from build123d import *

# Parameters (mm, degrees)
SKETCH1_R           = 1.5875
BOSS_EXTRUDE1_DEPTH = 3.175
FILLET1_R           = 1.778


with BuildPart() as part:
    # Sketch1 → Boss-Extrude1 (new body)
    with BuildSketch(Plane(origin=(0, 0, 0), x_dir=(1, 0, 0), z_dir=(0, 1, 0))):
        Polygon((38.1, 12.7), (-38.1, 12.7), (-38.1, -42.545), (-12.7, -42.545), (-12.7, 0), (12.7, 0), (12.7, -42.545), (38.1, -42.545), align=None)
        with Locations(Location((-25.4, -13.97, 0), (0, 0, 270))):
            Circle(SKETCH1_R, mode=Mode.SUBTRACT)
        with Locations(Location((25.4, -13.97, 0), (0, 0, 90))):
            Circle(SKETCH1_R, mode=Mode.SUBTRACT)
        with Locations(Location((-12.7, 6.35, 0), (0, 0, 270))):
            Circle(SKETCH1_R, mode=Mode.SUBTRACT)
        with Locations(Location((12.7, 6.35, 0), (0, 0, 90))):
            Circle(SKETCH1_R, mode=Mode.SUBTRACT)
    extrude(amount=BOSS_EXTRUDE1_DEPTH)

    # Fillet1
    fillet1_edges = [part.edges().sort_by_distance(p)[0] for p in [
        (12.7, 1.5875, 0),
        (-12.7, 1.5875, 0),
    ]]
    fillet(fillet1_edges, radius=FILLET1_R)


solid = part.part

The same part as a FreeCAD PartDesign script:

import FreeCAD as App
import Part
import Sketcher
from FreeCAD import Vector
Q = App.Units.Quantity


def edges_at(feature, points):
    """Names of the edges that pass closest to the given points."""
    edges = feature.Shape.Edges
    near = lambda p: min(range(len(edges)), key=lambda i: edges[i].distToShape(Part.Vertex(*p))[0])
    return sorted({f"Edge{near(p) + 1}" for p in points})

doc = App.newDocument("Part")
body = doc.addObject("PartDesign::Body", "Body")

sketch1 = doc.addObject("Sketcher::SketchObject", "Sketch")
body.addObject(sketch1)
sketch1.AttachmentSupport = (doc.XZ_Plane, [""])
sketch1.MapMode = "FlatFace"
sketch1.addGeometry(Part.LineSegment(Vector(38.1, -12.7, 0), Vector(-38.1, -12.7, 0)), False)
sketch1.addGeometry(Part.LineSegment(Vector(-38.1, -12.7, 0), Vector(-38.1, 42.5, 0)), False)
sketch1.addGeometry(Part.LineSegment(Vector(-38.1, 42.5, 0), Vector(-12.7, 42.5, 0)), False)
sketch1.addGeometry(Part.LineSegment(Vector(-12.7, 42.5, 0), Vector(-12.7, 0, 0)), False)
sketch1.addGeometry(Part.LineSegment(Vector(-12.7, 0, 0), Vector(12.7, 0, 0)), False)
sketch1.addGeometry(Part.LineSegment(Vector(12.7, 0, 0), Vector(12.7, 42.5, 0)), False)
sketch1.addGeometry(Part.LineSegment(Vector(12.7, 42.5, 0), Vector(38.1, 42.5, 0)), False)
sketch1.addGeometry(Part.LineSegment(Vector(38.1, 42.5, 0), Vector(38.1, -12.7, 0)), False)
sketch1.addGeometry(Part.Circle(Vector(-25.4, 14, 0), Vector(0, 0, 1), 1.6), False)
sketch1.addGeometry(Part.Circle(Vector(25.4, 14, 0), Vector(0, 0, 1), 1.6), False)
sketch1.addGeometry(Part.Circle(Vector(-12.7, -6.3, 0), Vector(0, 0, 1), 1.6), False)
sketch1.addGeometry(Part.Circle(Vector(12.7, -6.3, 0), Vector(0, 0, 1), 1.6), False)
sketch1.addConstraint(Sketcher.Constraint("Coincident", 0, 2, 1, 1))
sketch1.addConstraint(Sketcher.Constraint("Coincident", 1, 2, 2, 1))
sketch1.addConstraint(Sketcher.Constraint("Coincident", 2, 2, 3, 1))
sketch1.addConstraint(Sketcher.Constraint("Coincident", 3, 2, 4, 1))
sketch1.addConstraint(Sketcher.Constraint("Coincident", 4, 2, 5, 1))
sketch1.addConstraint(Sketcher.Constraint("Coincident", 5, 2, 6, 1))
sketch1.addConstraint(Sketcher.Constraint("Coincident", 6, 2, 7, 1))
sketch1.addConstraint(Sketcher.Constraint("Coincident", 7, 2, 0, 1))
sketch1.addConstraint(Sketcher.Constraint("Horizontal", 0))
sketch1.addConstraint(Sketcher.Constraint("Vertical", 1))
sketch1.addConstraint(Sketcher.Constraint("Horizontal", 2))
sketch1.addConstraint(Sketcher.Constraint("Vertical", 3))
sketch1.addConstraint(Sketcher.Constraint("Horizontal", 4))
sketch1.addConstraint(Sketcher.Constraint("Vertical", 5))
sketch1.addConstraint(Sketcher.Constraint("Horizontal", 6))
sketch1.addConstraint(Sketcher.Constraint("Vertical", 7))
sketch1.addConstraint(Sketcher.Constraint("Equal", 8, 9))
sketch1.addConstraint(Sketcher.Constraint("Equal", 9, 10))
sketch1.addConstraint(Sketcher.Constraint("Equal", 10, 11))
sketch1.addConstraint(Sketcher.Constraint("Symmetric", 3, 2, 4, 2, -1, 1))
sketch1.addConstraint(Sketcher.Constraint("Symmetric", 8, 3, 9, 3, -2))
sketch1.addConstraint(Sketcher.Constraint("Symmetric", 10, 3, 11, 3, -2))
sketch1.addConstraint(Sketcher.Constraint("Symmetric", 1, 2, 6, 2, -2))
sketch1.addConstraint(Sketcher.Constraint("Vertical", 10, 3, 2, 2))
sketch1.addConstraint(Sketcher.Constraint("Equal", 2, 4))
sketch1.addConstraint(Sketcher.Constraint("DistanceX", 0, 2, 0, 1, Q("3 in")))
sketch1.addConstraint(Sketcher.Constraint("Diameter", 8, Q("0.125 in")))
sketch1.addConstraint(Sketcher.Constraint("DistanceX", 8, 3, -1, 1, Q("1 in")))
sketch1.addConstraint(Sketcher.Constraint("DistanceY", 0, 2, -1, 1, Q("0.5 in")))
sketch1.addConstraint(Sketcher.Constraint("DistanceY", 10, 3, 8, 3, Q("0.8 in")))
sketch1.addConstraint(Sketcher.Constraint("DistanceY", 1, 1, 1, 2, Q("2.175 in")))
sketch1.addConstraint(Sketcher.Constraint("DistanceY", -1, 1, 8, 3, Q("0.55 in")))
pad1 = doc.addObject("PartDesign::Pad", "Pad")
body.addObject(pad1)
pad1.Profile = sketch1
pad1.Length = Q("0.125 in")
pad1.Reversed = True
doc.recompute()

fillet = doc.addObject("PartDesign::Fillet", "Fillet")
body.addObject(fillet)
fillet.Base = (pad1, edges_at(pad1, [(12.7, 1.587, 0), (-12.7, 1.587, 0)]))
fillet.Radius = Q("0.07 in")

doc.recompute()
